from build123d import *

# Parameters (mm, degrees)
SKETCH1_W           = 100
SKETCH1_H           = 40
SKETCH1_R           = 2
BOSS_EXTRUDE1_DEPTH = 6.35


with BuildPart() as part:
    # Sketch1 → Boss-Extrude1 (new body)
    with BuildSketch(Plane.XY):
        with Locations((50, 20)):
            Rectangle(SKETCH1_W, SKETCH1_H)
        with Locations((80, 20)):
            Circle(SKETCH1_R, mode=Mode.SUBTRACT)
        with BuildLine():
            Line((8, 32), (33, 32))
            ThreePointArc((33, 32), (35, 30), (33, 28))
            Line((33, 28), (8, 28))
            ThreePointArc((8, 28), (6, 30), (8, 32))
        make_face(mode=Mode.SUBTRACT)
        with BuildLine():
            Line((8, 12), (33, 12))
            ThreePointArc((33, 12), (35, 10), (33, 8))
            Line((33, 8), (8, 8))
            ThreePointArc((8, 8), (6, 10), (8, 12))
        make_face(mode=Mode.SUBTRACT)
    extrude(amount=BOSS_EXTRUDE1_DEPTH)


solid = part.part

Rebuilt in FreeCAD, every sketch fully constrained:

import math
import FreeCAD as App
import Part
import Sketcher
from FreeCAD import Vector
Q = App.Units.Quantity

doc = App.newDocument("Part")
body = doc.addObject("PartDesign::Body", "Body")

sketch1 = body.newObject("Sketcher::SketchObject", "Sketch")
sketch1.AttachmentSupport = (doc.getObject("XY_Plane"), [""])
sketch1.MapMode = "FlatFace"
sketch1.addGeometry(Part.LineSegment(Vector(0, 40, 0), Vector(0, 0, 0)), False)
sketch1.addGeometry(Part.LineSegment(Vector(0, 0, 0), Vector(100, 0, 0)), False)
sketch1.addGeometry(Part.LineSegment(Vector(100, 0, 0), Vector(100, 40, 0)), False)
sketch1.addGeometry(Part.LineSegment(Vector(100, 40, 0), Vector(0, 40, 0)), False)
sketch1.addGeometry(Part.ArcOfCircle(Part.Circle(Vector(8, 10, 0), Vector(0, 0, 1), 2), math.radians(90), math.radians(270)), False)
sketch1.addGeometry(Part.LineSegment(Vector(8, 12, 0), Vector(33, 12, 0)), False)
sketch1.addGeometry(Part.ArcOfCircle(Part.Circle(Vector(33, 10, 0), Vector(0, 0, 1), 2), math.radians(-90), math.radians(90)), False)
sketch1.addGeometry(Part.LineSegment(Vector(33, 8, 0), Vector(8, 8, 0)), False)
sketch1.addGeometry(Part.ArcOfCircle(Part.Circle(Vector(8, 30, 0), Vector(0, 0, 1), 2), math.radians(90), math.radians(270)), False)
sketch1.addGeometry(Part.LineSegment(Vector(8, 32, 0), Vector(33, 32, 0)), False)
sketch1.addGeometry(Part.ArcOfCircle(Part.Circle(Vector(33, 30, 0), Vector(0, 0, 1), 2), math.radians(-90), math.radians(90)), False)
sketch1.addGeometry(Part.LineSegment(Vector(33, 28, 0), Vector(8, 28, 0)), False)
sketch1.addGeometry(Part.Circle(Vector(80, 20, 0), Vector(0, 0, 1), 2), False)
sketch1.addConstraint(Sketcher.Constraint("Coincident", 0, 2, 1, 1))
sketch1.addConstraint(Sketcher.Constraint("Coincident", 1, 2, 2, 1))
sketch1.addConstraint(Sketcher.Constraint("Coincident", 2, 2, 3, 1))
sketch1.addConstraint(Sketcher.Constraint("Coincident", 3, 2, 0, 1))
sketch1.addConstraint(Sketcher.Constraint("Tangent", 4, 1, 5, 1))
sketch1.addConstraint(Sketcher.Constraint("Tangent", 5, 2, 6, 2))
sketch1.addConstraint(Sketcher.Constraint("Tangent", 6, 1, 7, 1))
sketch1.addConstraint(Sketcher.Constraint("Tangent", 7, 2, 4, 2))
sketch1.addConstraint(Sketcher.Constraint("Tangent", 8, 1, 9, 1))
sketch1.addConstraint(Sketcher.Constraint("Tangent", 9, 2, 10, 2))
sketch1.addConstraint(Sketcher.Constraint("Tangent", 10, 1, 11, 1))
sketch1.addConstraint(Sketcher.Constraint("Tangent", 11, 2, 8, 2))
sketch1.addConstraint(Sketcher.Constraint("Vertical", 0))
sketch1.addConstraint(Sketcher.Constraint("Horizontal", 1))
sketch1.addConstraint(Sketcher.Constraint("Vertical", 2))
sketch1.addConstraint(Sketcher.Constraint("Horizontal", 3))
sketch1.addConstraint(Sketcher.Constraint("Horizontal", 5))
sketch1.addConstraint(Sketcher.Constraint("Horizontal", 7))
sketch1.addConstraint(Sketcher.Constraint("Horizontal", 9))
sketch1.addConstraint(Sketcher.Constraint("Horizontal", 11))
sketch1.addConstraint(Sketcher.Constraint("Coincident", 0, 2, -1, 1))
sketch1.addConstraint(Sketcher.Constraint("Equal", 6, 8))
sketch1.addConstraint(Sketcher.Constraint("Equal", 10, 12))
sketch1.addConstraint(Sketcher.Constraint("Vertical", 4, 3, 8, 3))
sketch1.addConstraint(Sketcher.Constraint("Vertical", 6, 3, 10, 3))
sketch1.addConstraint(Sketcher.Constraint("Diameter", 12, Q("4 mm")))
sketch1.addConstraint(Sketcher.Constraint("DistanceX", 1, 1, 1, 2, Q("100 mm")))
sketch1.addConstraint(Sketcher.Constraint("DistanceX", 5, 1, 5, 2, Q("25 mm")))
sketch1.addConstraint(Sketcher.Constraint("DistanceY", 0, 2, 0, 1, Q("40 mm")))
sketch1.addConstraint(Sketcher.Constraint("DistanceX", -1, 1, 4, 3, Q("8 mm")))
sketch1.addConstraint(Sketcher.Constraint("DistanceY", -1, 1, 4, 3, Q("10 mm")))
sketch1.addConstraint(Sketcher.Constraint("DistanceY", -1, 1, 8, 3, Q("30 mm")))
sketch1.addConstraint(Sketcher.Constraint("DistanceX", -1, 1, 12, 3, Q("80 mm")))
sketch1.addConstraint(Sketcher.Constraint("DistanceY", -1, 1, 12, 3, Q("20 mm")))
pad1 = body.newObject("PartDesign::Pad", "Pad")
pad1.Profile = sketch1
pad1.Length = 6.35

doc.recompute()
